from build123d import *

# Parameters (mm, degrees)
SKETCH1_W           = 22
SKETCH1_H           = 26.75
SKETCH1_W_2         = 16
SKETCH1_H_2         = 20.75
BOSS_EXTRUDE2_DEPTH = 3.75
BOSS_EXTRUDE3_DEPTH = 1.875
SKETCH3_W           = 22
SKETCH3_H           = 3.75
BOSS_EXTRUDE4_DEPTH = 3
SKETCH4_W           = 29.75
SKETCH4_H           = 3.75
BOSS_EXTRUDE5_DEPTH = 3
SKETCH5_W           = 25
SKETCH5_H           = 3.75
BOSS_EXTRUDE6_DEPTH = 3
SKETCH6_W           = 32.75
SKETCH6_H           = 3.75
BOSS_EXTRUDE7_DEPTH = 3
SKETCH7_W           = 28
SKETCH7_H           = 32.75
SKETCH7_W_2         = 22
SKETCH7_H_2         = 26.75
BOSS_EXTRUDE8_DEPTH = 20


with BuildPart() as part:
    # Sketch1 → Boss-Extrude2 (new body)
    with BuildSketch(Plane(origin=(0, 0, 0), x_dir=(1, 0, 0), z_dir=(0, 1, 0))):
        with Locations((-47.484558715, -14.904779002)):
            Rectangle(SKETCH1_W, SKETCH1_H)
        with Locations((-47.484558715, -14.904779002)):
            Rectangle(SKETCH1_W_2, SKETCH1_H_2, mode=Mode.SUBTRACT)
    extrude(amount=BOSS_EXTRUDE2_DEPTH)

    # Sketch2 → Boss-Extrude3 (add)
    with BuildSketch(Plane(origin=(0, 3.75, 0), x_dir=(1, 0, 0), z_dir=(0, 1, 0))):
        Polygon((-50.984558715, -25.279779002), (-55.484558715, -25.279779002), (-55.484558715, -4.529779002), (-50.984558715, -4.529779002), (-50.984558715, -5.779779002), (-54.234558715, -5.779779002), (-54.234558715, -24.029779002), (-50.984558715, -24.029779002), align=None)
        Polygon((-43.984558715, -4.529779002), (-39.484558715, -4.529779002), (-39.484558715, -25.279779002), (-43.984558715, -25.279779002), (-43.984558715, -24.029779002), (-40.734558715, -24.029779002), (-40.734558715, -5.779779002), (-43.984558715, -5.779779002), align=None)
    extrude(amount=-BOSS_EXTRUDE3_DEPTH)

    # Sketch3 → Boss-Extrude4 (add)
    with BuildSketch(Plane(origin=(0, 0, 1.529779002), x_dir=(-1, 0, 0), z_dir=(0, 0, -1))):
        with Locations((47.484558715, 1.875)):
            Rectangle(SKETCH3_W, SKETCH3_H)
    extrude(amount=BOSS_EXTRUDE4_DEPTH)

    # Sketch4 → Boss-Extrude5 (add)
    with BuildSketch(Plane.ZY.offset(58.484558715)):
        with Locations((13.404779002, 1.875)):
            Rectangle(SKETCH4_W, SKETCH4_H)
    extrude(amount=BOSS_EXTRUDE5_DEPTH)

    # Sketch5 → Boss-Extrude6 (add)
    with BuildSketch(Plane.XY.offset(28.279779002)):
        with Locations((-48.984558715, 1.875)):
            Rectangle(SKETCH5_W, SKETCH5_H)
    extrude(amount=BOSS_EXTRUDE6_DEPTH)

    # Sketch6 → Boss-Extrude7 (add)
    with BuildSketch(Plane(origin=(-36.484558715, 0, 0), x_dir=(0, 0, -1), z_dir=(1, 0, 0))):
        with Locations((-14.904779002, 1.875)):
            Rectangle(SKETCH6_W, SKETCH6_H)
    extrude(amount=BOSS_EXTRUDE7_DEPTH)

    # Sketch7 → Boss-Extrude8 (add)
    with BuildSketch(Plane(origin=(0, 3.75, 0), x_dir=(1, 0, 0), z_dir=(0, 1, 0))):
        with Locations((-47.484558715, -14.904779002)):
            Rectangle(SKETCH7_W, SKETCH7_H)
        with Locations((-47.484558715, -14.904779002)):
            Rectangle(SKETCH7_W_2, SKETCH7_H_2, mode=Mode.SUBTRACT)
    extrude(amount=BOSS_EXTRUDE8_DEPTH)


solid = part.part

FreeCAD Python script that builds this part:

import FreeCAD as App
import Part
import Sketcher
Q = App.Units.Quantity


def add_polygon(sketch, points):
    """Adds a closed chain of lines whose ends are joined by coincident constraints."""
    first, n = sketch.GeometryCount, len(points)
    for a, b in zip(points, points[1:] + points[:1]):
        sketch.addGeometry(Part.LineSegment(App.Vector(*a, 0), App.Vector(*b, 0)), False)
    for i in range(n):
        sketch.addConstraint(Sketcher.Constraint("Coincident", first + i, 2, first + (i + 1) % n, 1))

doc = App.newDocument("Part")
params = doc.addObject("Spreadsheet::Sheet", "Params")
for row, (alias, value) in enumerate([
    ("sketch1_width", "22 mm"),
    ("sketch1_width2", "16 mm"),
    ("sketch1_height", "26.75 mm"),
    ("pad1_length", "3.75 mm"),
    ("sketch2_width", "4.5 mm"),
    ("sketch2_width2", "3.25 mm"),
    ("sketch2_height", "1.25 mm"),
    ("sketch2_height2", "18.25 mm"),
    ("pad2_length", "1.875 mm"),
    ("sketch3_width", "22 mm"),
    ("sketch3_height", "3.75 mm"),
    ("pad3_length", "3 mm"),
    ("sketch4_width", "3.75 mm"),
    ("sketch4_height", "29.75 mm"),
    ("pad4_length", "3 mm"),
    ("sketch5_width", "25 mm"),
    ("sketch5_height", "3.75 mm"),
    ("pad5_length", "3 mm"),
    ("sketch6_width", "3.75 mm"),
    ("sketch6_height", "32.75 mm"),
    ("pad6_length", "3 mm"),
    ("sketch7_width", "28 mm"),
    ("sketch7_width2", "22 mm"),
    ("sketch7_height", "32.75 mm"),
    ("pad7_length", "20 mm"),
], start=1):
    params.set(f"A{row}", alias)
    params.set(f"B{row}", "=" + value)
    params.setAlias(f"B{row}", alias)

body = doc.addObject("PartDesign::Body", "Body")

# Sketch on XZ plane
sketch1 = body.newObject("Sketcher::SketchObject", "Sketch")
sketch1.AttachmentSupport = (doc.getObject("XZ_Plane"), [""])
sketch1.MapMode = "FlatFace"
add_polygon(sketch1, [(-58.484559, 1.529779), (-58.484559, 28.279779), (-36.484559, 28.279779), (-36.484559, 1.529779)])  # lines 0-3
add_polygon(sketch1, [(-39.484559, 25.279779), (-55.484559, 25.279779), (-55.484559, 4.529779), (-39.484559, 4.529779)])  # lines 4-7
sketch1.addConstraint([
    Sketcher.Constraint("Vertical", 0),
    Sketcher.Constraint("Horizontal", 1),
    Sketcher.Constraint("Vertical", 2),
    Sketcher.Constraint("Horizontal", 3),
    Sketcher.Constraint("Horizontal", 4),
    Sketcher.Constraint("Vertical", 5),
    Sketcher.Constraint("Horizontal", 6),
    Sketcher.Constraint("Vertical", 7),
    Sketcher.Constraint("DistanceX", 1, 1, 1, 2, Q("22 mm")),
    Sketcher.Constraint("DistanceX", 4, 2, 4, 1, Q("16 mm")),
    Sketcher.Constraint("DistanceX", 0, 2, 4, 2, Q("3 mm")),
    Sketcher.Constraint("DistanceY", 4, 2, 0, 2, Q("3 mm")),
    Sketcher.Constraint("DistanceY", 3, 2, 5, 2, Q("3 mm")),
    Sketcher.Constraint("DistanceY", 0, 1, 0, 2, Q("26.75 mm")),
    Sketcher.Constraint("DistanceX", 0, 2, -1, 1, Q("58.484559 mm")),
    Sketcher.Constraint("DistanceY", -1, 1, 0, 2, Q("28.279779 mm")),
])
sketch1.setExpression("Constraints[16]", "Params.sketch1_width")
sketch1.setExpression("Constraints[17]", "Params.sketch1_width2")
sketch1.setExpression("Constraints[21]", "Params.sketch1_height")
pad1 = body.newObject("PartDesign::Pad", "Pad")
pad1.Profile = sketch1
pad1.setExpression("Length", "Params.pad1_length")
pad1.Reversed = True

# Sketch on XZ plane
sketch2 = body.newObject("Sketcher::SketchObject", "Sketch001")
sketch2.AttachmentSupport = (doc.getObject("XZ_Plane"), [""])
sketch2.MapMode = "FlatFace"
sketch2.AttachmentOffset = App.Placement(App.Vector(0, 0, -3.75), App.Rotation())
add_polygon(sketch2, [(-55.484559, 25.279779), (-50.984559, 25.279779), (-50.984559, 24.029779), (-54.234559, 24.029779), (-54.234559, 5.779779), (-50.984559, 5.779779), (-50.984559, 4.529779), (-55.484559, 4.529779)])  # lines 0-7
add_polygon(sketch2, [(-39.484559, 4.529779), (-43.984559, 4.529779), (-43.984559, 5.779779), (-40.734559, 5.779779), (-40.734559, 24.029779), (-43.984559, 24.029779), (-43.984559, 25.279779), (-39.484559, 25.279779)])  # lines 8-15
sketch2.addConstraint([
    Sketcher.Constraint("Horizontal", 0),
    Sketcher.Constraint("Vertical", 1),
    Sketcher.Constraint("Horizontal", 2),
    Sketcher.Constraint("Vertical", 3),
    Sketcher.Constraint("Horizontal", 4),
    Sketcher.Constraint("Vertical", 5),
    Sketcher.Constraint("Horizontal", 6),
    Sketcher.Constraint("Vertical", 7),
    Sketcher.Constraint("Horizontal", 8),
    Sketcher.Constraint("Vertical", 9),
    Sketcher.Constraint("Horizontal", 10),
    Sketcher.Constraint("Vertical", 11),
    Sketcher.Constraint("Horizontal", 12),
    Sketcher.Constraint("Vertical", 13),
    Sketcher.Constraint("Horizontal", 14),
    Sketcher.Constraint("Vertical", 15),
    Sketcher.Constraint("Horizontal", 6, 2, 8, 2),
    Sketcher.Constraint("Horizontal", 4, 2, 9, 2),
    Sketcher.Constraint("Horizontal", 2, 2, 11, 2),
    Sketcher.Constraint("Horizontal", 7, 2, 13, 2),
    Sketcher.Constraint("Vertical", 1, 2, 4, 2),
    Sketcher.Constraint("Vertical", 9, 2, 12, 2),
    Sketcher.Constraint("Equal", 6, 8),
    Sketcher.Constraint("Equal", 4, 10),
    Sketcher.Constraint("Equal", 1, 5),
    Sketcher.Constraint("DistanceX", 0, 1, 0, 2, Q("4.5 mm")),
    Sketcher.Constraint("DistanceX", 5, 2, 8, 2, Q("7 mm")),
    Sketcher.Constraint("DistanceX", 2, 2, 2, 1, Q("3.25 mm")),
    Sketcher.Constraint("DistanceY", 1, 2, 1, 1, Q("1.25 mm")),
    Sketcher.Constraint("DistanceY", 3, 2, 3, 1, Q("18.25 mm")),
    Sketcher.Constraint("DistanceX", 0, 2, -1, 1, Q("50.984559 mm")),
    Sketcher.Constraint("DistanceY", -1, 1, 0, 2, Q("25.279779 mm")),
])
sketch2.setExpression("Constraints[41]", "Params.sketch2_width")
sketch2.setExpression("Constraints[43]", "Params.sketch2_width2")
sketch2.setExpression("Constraints[44]", "Params.sketch2_height")
sketch2.setExpression("Constraints[45]", "Params.sketch2_height2")
pad2 = body.newObject("PartDesign::Pad", "Pad001")
pad2.Profile = sketch2
pad2.setExpression("Length", "Params.pad2_length")

# Sketch on XY plane
sketch3 = body.newObject("Sketcher::SketchObject", "Sketch002")
sketch3.AttachmentSupport = (doc.getObject("XY_Plane"), [""])
sketch3.MapMode = "FlatFace"
sketch3.AttachmentOffset = App.Placement(App.Vector(0, 0, 1.529779), App.Rotation())
add_polygon(sketch3, [(-36.484559, 3.75), (-36.484559, 0), (-58.484559, 0), (-58.484559, 3.75)])  # lines 0-3
sketch3.addConstraint([
    Sketcher.Constraint("Vertical", 0),
    Sketcher.Constraint("Horizontal", 1),
    Sketcher.Constraint("Vertical", 2),
    Sketcher.Constraint("Horizontal", 3),
    Sketcher.Constraint("PointOnObject", 0, 2, -1),
    Sketcher.Constraint("DistanceX", 1, 2, 1, 1, Q("22 mm")),
    Sketcher.Constraint("DistanceY", 0, 2, 0, 1, Q("3.75 mm")),
    Sketcher.Constraint("DistanceX", 0, 2, -1, 1, Q("36.484559 mm")),
])
sketch3.setExpression("Constraints[9]", "Params.sketch3_width")
sketch3.setExpression("Constraints[10]", "Params.sketch3_height")
pad3 = body.newObject("PartDesign::Pad", "Pad002")
pad3.Profile = sketch3
pad3.setExpression("Length", "Params.pad3_length")
pad3.Reversed = True

# Sketch on YZ plane
sketch4 = body.newObject("Sketcher::SketchObject", "Sketch003")
sketch4.AttachmentSupport = (doc.getObject("YZ_Plane"), [""])
sketch4.MapMode = "FlatFace"
sketch4.AttachmentOffset = App.Placement(App.Vector(0, 0, -58.484559), App.Rotation())
add_polygon(sketch4, [(3.75, -1.470221), (0, -1.470221), (0, 28.279779), (3.75, 28.279779)])  # lines 0-3
sketch4.addConstraint([
    Sketcher.Constraint("Horizontal", 0),
    Sketcher.Constraint("Vertical", 1),
    Sketcher.Constraint("Horizontal", 2),
    Sketcher.Constraint("Vertical", 3),
    Sketcher.Constraint("PointOnObject", 0, 2, -2),
    Sketcher.Constraint("DistanceX", 0, 2, 0, 1, Q("3.75 mm")),
    Sketcher.Constraint("DistanceY", 1, 1, 1, 2, Q("29.75 mm")),
    Sketcher.Constraint("DistanceY", 0, 2, -1, 1, Q("1.470221 mm")),
])
sketch4.setExpression("Constraints[9]", "Params.sketch4_width")
sketch4.setExpression("Constraints[10]", "Params.sketch4_height")
pad4 = body.newObject("PartDesign::Pad", "Pad003")
pad4.Profile = sketch4
pad4.setExpression("Length", "Params.pad4_length")
pad4.Reversed = True

# Sketch on XY plane
sketch5 = body.newObject("Sketcher::SketchObject", "Sketch004")
sketch5.AttachmentSupport = (doc.getObject("XY_Plane"), [""])
sketch5.MapMode = "FlatFace"
sketch5.AttachmentOffset = App.Placement(App.Vector(0, 0, 28.279779), App.Rotation())
add_polygon(sketch5, [(-61.484559, 3.75), (-61.484559, 0), (-36.484559, 0), (-36.484559, 3.75)])  # lines 0-3
sketch5.addConstraint([
    Sketcher.Constraint("Vertical", 0),
    Sketcher.Constraint("Horizontal", 1),
    Sketcher.Constraint("Vertical", 2),
    Sketcher.Constraint("Horizontal", 3),
    Sketcher.Constraint("PointOnObject", 0, 2, -1),
    Sketcher.Constraint("DistanceX", 1, 1, 1, 2, Q("25 mm")),
    Sketcher.Constraint("DistanceY", 0, 2, 0, 1, Q("3.75 mm")),
    Sketcher.Constraint("DistanceX", 0, 2, -1, 1, Q("61.484559 mm")),
])
sketch5.setExpression("Constraints[9]", "Params.sketch5_width")
sketch5.setExpression("Constraints[10]", "Params.sketch5_height")
pad5 = body.newObject("PartDesign::Pad", "Pad004")
pad5.Profile = sketch5
pad5.setExpression("Length", "Params.pad5_length")

# Sketch on YZ plane
sketch6 = body.newObject("Sketcher::SketchObject", "Sketch005")
sketch6.AttachmentSupport = (doc.getObject("YZ_Plane"), [""])
sketch6.MapMode = "FlatFace"
sketch6.AttachmentOffset = App.Placement(App.Vector(0, 0, -36.484559), App.Rotation())
add_polygon(sketch6, [(3.75, 31.279779), (0, 31.279779), (0, -1.470221), (3.75, -1.470221)])  # lines 0-3
sketch6.addConstraint([
    Sketcher.Constraint("Horizontal", 0),
    Sketcher.Constraint("Vertical", 1),
    Sketcher.Constraint("Horizontal", 2),
    Sketcher.Constraint("Vertical", 3),
    Sketcher.Constraint("PointOnObject", 0, 2, -2),
    Sketcher.Constraint("DistanceX", 0, 2, 0, 1, Q("3.75 mm")),
    Sketcher.Constraint("DistanceY", 1, 2, 1, 1, Q("32.75 mm")),
    Sketcher.Constraint("DistanceY", -1, 1, 0, 2, Q("31.279779 mm")),
])
sketch6.setExpression("Constraints[9]", "Params.sketch6_width")
sketch6.setExpression("Constraints[10]", "Params.sketch6_height")
pad6 = body.newObject("PartDesign::Pad", "Pad005")
pad6.Profile = sketch6
pad6.setExpression("Length", "Params.pad6_length")

# Sketch on XZ plane
sketch7 = body.newObject("Sketcher::SketchObject", "Sketch006")
sketch7.AttachmentSupport = (doc.getObject("XZ_Plane"), [""])
sketch7.MapMode = "FlatFace"
sketch7.AttachmentOffset = App.Placement(App.Vector(0, 0, -3.75), App.Rotation())
add_polygon(sketch7, [(-61.484559, -1.470221), (-61.484559, 31.279779), (-33.484559, 31.279779), (-33.484559, -1.470221)])  # lines 0-3
add_polygon(sketch7, [(-36.484559, 28.279779), (-58.484559, 28.279779), (-58.484559, 1.529779), (-36.484559, 1.529779)])  # lines 4-7
sketch7.addConstraint([
    Sketcher.Constraint("Vertical", 0),
    Sketcher.Constraint("Horizontal", 1),
    Sketcher.Constraint("Vertical", 2),
    Sketcher.Constraint("Horizontal", 3),
    Sketcher.Constraint("Horizontal", 4),
    Sketcher.Constraint("Vertical", 5),
    Sketcher.Constraint("Horizontal", 6),
    Sketcher.Constraint("Vertical", 7),
    Sketcher.Constraint("DistanceX", 1, 1, 1, 2, Q("28 mm")),
    Sketcher.Constraint("DistanceX", 4, 2, 4, 1, Q("22 mm")),
    Sketcher.Constraint("DistanceX", 0, 2, 4, 2, Q("3 mm")),
    Sketcher.Constraint("DistanceY", 4, 2, 0, 2, Q("3 mm")),
    Sketcher.Constraint("DistanceY", 3, 2, 5, 2, Q("3 mm")),
    Sketcher.Constraint("DistanceY", 0, 1, 0, 2, Q("32.75 mm")),
    Sketcher.Constraint("DistanceX", 0, 2, -1, 1, Q("61.484559 mm")),
    Sketcher.Constraint("DistanceY", -1, 1, 0, 2, Q("31.279779 mm")),
])
sketch7.setExpression("Constraints[16]", "Params.sketch7_width")
sketch7.setExpression("Constraints[17]", "Params.sketch7_width2")
sketch7.setExpression("Constraints[21]", "Params.sketch7_height")
pad7 = body.newObject("PartDesign::Pad", "Pad006")
pad7.Profile = sketch7
pad7.setExpression("Length", "Params.pad7_length")
pad7.Reversed = True

doc.recompute()
